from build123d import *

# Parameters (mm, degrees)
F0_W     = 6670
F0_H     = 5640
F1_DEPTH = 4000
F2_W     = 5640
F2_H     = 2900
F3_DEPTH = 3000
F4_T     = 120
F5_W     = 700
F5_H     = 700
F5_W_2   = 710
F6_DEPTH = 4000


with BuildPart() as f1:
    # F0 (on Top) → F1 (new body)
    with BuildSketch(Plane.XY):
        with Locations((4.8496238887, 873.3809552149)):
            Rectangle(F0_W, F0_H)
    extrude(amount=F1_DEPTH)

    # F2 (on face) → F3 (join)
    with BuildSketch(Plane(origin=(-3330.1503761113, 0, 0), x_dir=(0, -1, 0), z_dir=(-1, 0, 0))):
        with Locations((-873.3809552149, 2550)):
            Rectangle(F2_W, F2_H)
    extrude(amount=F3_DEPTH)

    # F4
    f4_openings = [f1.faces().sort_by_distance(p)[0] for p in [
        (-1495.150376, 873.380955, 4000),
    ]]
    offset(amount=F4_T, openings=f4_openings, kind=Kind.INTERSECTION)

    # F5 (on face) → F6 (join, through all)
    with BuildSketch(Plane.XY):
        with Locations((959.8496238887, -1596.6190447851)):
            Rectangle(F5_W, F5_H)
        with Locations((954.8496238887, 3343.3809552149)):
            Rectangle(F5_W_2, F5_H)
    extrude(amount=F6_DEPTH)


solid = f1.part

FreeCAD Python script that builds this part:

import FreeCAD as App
import Part
import Sketcher
from FreeCAD import Vector


def faces_at(feature, points):
    """Names of the faces that lie closest to the given points."""
    faces = feature.Shape.Faces
    near = lambda p: min(range(len(faces)), key=lambda i: faces[i].distToShape(Part.Vertex(*p))[0])
    return sorted({f"Face{near(p) + 1}" for p in points})


def add_polygon(sketch, points):
    """Adds a closed chain of lines whose ends are joined by coincident constraints."""
    first, n = sketch.GeometryCount, len(points)
    for a, b in zip(points, points[1:] + points[:1]):
        sketch.addGeometry(Part.LineSegment(App.Vector(*a, 0), App.Vector(*b, 0)), False)
    for i in range(n):
        sketch.addConstraint(Sketcher.Constraint("Coincident", first + i, 2, first + (i + 1) % n, 1))

doc = App.newDocument("Part")
body = doc.addObject("PartDesign::Body", "Body")

# Sketch on XY plane
sketch1 = body.newObject("Sketcher::SketchObject", "Sketch")
sketch1.AttachmentSupport = (doc.getObject("XY_Plane"), [""])
sketch1.MapMode = "FlatFace"
add_polygon(sketch1, [(-3330, 3693), (-3330, -1947), (3340, -1947), (3340, 3693)])  # lines 0-3
sketch1.addConstraint([
    Sketcher.Constraint("Vertical", 0),
    Sketcher.Constraint("Horizontal", 1),
    Sketcher.Constraint("Vertical", 2),
    Sketcher.Constraint("Horizontal", 3),
    Sketcher.Constraint("DistanceX", 1, 1, 1, 2, 6670.0),
    Sketcher.Constraint("DistanceY", 0, 2, 0, 1, 5640.0),
    Sketcher.Constraint("DistanceX", 0, 2, -1, 1, 3330.150376),
    Sketcher.Constraint("DistanceY", 0, 2, -1, 1, 1946.619045),
])
pad1 = body.newObject("PartDesign::Pad", "Pad")
pad1.Profile = sketch1
pad1.Length = 4000

# Sketch on YZ plane
sketch2 = body.newObject("Sketcher::SketchObject", "Sketch001")
sketch2.AttachmentSupport = (doc.getObject("YZ_Plane"), [""])
sketch2.MapMode = "FlatFace"
sketch2.AttachmentOffset = App.Placement(Vector(0, 0, -3330.150376), App.Rotation())
add_polygon(sketch2, [(3693, 4000), (3693, 1100), (-1947, 1100), (-1947, 4000)])  # lines 0-3
sketch2.addConstraint([
    Sketcher.Constraint("Vertical", 0),
    Sketcher.Constraint("Horizontal", 1),
    Sketcher.Constraint("Vertical", 2),
    Sketcher.Constraint("Horizontal", 3),
    Sketcher.Constraint("DistanceX", 1, 2, 1, 1, 5640.0),
    Sketcher.Constraint("DistanceY", 0, 2, 0, 1, 2900.0),
    Sketcher.Constraint("DistanceY", -1, 1, 0, 2, 1100.0),
    Sketcher.Constraint("DistanceX", -1, 1, 0, 2, 3693.380955),
])
pad2 = body.newObject("PartDesign::Pad", "Pad001")
pad2.Profile = sketch2
pad2.Length = 3000
pad2.Reversed = True
doc.recompute()

thickness = body.newObject("PartDesign::Thickness", "Thickness")
thickness.Base = (pad2, faces_at(pad2, [(-1495.15, 873.381, 4000)]))
thickness.Value = 120
thickness.Reversed = False
thickness.Join = "Intersection"

# Sketch on XY plane
sketch3 = body.newObject("Sketcher::SketchObject", "Sketch002")
sketch3.AttachmentSupport = (doc.getObject("XY_Plane"), [""])
sketch3.MapMode = "FlatFace"
add_polygon(sketch3, [(610, -1247), (610, -1947), (1310, -1947), (1310, -1247)])  # lines 0-3
add_polygon(sketch3, [(600, 3693), (600, 2993), (1310, 2993), (1310, 3693)])  # lines 4-7
sketch3.addConstraint([
    Sketcher.Constraint("Vertical", 0),
    Sketcher.Constraint("Horizontal", 1),
    Sketcher.Constraint("Vertical", 2),
    Sketcher.Constraint("Horizontal", 3),
    Sketcher.Constraint("Vertical", 4),
    Sketcher.Constraint("Horizontal", 5),
    Sketcher.Constraint("Vertical", 6),
    Sketcher.Constraint("Horizontal", 7),
    Sketcher.Constraint("Vertical", 2, 2, 5, 2),
    Sketcher.Constraint("Equal", 3, 0),
    Sketcher.Constraint("Equal", 2, 4),
    Sketcher.Constraint("DistanceX", 1, 1, 1, 2, 700.0),
    Sketcher.Constraint("DistanceX", 5, 1, 5, 2, 710.0),
    Sketcher.Constraint("DistanceY", 3, 2, 4, 2, 4240.0),
    Sketcher.Constraint("DistanceX", -1, 1, 0, 2, 609.849624),
    Sketcher.Constraint("DistanceY", 0, 2, -1, 1, 1946.619045),
])
pad3 = body.newObject("PartDesign::Pad", "Pad002")
pad3.Profile = sketch3
pad3.Length = 4000

doc.recompute()
